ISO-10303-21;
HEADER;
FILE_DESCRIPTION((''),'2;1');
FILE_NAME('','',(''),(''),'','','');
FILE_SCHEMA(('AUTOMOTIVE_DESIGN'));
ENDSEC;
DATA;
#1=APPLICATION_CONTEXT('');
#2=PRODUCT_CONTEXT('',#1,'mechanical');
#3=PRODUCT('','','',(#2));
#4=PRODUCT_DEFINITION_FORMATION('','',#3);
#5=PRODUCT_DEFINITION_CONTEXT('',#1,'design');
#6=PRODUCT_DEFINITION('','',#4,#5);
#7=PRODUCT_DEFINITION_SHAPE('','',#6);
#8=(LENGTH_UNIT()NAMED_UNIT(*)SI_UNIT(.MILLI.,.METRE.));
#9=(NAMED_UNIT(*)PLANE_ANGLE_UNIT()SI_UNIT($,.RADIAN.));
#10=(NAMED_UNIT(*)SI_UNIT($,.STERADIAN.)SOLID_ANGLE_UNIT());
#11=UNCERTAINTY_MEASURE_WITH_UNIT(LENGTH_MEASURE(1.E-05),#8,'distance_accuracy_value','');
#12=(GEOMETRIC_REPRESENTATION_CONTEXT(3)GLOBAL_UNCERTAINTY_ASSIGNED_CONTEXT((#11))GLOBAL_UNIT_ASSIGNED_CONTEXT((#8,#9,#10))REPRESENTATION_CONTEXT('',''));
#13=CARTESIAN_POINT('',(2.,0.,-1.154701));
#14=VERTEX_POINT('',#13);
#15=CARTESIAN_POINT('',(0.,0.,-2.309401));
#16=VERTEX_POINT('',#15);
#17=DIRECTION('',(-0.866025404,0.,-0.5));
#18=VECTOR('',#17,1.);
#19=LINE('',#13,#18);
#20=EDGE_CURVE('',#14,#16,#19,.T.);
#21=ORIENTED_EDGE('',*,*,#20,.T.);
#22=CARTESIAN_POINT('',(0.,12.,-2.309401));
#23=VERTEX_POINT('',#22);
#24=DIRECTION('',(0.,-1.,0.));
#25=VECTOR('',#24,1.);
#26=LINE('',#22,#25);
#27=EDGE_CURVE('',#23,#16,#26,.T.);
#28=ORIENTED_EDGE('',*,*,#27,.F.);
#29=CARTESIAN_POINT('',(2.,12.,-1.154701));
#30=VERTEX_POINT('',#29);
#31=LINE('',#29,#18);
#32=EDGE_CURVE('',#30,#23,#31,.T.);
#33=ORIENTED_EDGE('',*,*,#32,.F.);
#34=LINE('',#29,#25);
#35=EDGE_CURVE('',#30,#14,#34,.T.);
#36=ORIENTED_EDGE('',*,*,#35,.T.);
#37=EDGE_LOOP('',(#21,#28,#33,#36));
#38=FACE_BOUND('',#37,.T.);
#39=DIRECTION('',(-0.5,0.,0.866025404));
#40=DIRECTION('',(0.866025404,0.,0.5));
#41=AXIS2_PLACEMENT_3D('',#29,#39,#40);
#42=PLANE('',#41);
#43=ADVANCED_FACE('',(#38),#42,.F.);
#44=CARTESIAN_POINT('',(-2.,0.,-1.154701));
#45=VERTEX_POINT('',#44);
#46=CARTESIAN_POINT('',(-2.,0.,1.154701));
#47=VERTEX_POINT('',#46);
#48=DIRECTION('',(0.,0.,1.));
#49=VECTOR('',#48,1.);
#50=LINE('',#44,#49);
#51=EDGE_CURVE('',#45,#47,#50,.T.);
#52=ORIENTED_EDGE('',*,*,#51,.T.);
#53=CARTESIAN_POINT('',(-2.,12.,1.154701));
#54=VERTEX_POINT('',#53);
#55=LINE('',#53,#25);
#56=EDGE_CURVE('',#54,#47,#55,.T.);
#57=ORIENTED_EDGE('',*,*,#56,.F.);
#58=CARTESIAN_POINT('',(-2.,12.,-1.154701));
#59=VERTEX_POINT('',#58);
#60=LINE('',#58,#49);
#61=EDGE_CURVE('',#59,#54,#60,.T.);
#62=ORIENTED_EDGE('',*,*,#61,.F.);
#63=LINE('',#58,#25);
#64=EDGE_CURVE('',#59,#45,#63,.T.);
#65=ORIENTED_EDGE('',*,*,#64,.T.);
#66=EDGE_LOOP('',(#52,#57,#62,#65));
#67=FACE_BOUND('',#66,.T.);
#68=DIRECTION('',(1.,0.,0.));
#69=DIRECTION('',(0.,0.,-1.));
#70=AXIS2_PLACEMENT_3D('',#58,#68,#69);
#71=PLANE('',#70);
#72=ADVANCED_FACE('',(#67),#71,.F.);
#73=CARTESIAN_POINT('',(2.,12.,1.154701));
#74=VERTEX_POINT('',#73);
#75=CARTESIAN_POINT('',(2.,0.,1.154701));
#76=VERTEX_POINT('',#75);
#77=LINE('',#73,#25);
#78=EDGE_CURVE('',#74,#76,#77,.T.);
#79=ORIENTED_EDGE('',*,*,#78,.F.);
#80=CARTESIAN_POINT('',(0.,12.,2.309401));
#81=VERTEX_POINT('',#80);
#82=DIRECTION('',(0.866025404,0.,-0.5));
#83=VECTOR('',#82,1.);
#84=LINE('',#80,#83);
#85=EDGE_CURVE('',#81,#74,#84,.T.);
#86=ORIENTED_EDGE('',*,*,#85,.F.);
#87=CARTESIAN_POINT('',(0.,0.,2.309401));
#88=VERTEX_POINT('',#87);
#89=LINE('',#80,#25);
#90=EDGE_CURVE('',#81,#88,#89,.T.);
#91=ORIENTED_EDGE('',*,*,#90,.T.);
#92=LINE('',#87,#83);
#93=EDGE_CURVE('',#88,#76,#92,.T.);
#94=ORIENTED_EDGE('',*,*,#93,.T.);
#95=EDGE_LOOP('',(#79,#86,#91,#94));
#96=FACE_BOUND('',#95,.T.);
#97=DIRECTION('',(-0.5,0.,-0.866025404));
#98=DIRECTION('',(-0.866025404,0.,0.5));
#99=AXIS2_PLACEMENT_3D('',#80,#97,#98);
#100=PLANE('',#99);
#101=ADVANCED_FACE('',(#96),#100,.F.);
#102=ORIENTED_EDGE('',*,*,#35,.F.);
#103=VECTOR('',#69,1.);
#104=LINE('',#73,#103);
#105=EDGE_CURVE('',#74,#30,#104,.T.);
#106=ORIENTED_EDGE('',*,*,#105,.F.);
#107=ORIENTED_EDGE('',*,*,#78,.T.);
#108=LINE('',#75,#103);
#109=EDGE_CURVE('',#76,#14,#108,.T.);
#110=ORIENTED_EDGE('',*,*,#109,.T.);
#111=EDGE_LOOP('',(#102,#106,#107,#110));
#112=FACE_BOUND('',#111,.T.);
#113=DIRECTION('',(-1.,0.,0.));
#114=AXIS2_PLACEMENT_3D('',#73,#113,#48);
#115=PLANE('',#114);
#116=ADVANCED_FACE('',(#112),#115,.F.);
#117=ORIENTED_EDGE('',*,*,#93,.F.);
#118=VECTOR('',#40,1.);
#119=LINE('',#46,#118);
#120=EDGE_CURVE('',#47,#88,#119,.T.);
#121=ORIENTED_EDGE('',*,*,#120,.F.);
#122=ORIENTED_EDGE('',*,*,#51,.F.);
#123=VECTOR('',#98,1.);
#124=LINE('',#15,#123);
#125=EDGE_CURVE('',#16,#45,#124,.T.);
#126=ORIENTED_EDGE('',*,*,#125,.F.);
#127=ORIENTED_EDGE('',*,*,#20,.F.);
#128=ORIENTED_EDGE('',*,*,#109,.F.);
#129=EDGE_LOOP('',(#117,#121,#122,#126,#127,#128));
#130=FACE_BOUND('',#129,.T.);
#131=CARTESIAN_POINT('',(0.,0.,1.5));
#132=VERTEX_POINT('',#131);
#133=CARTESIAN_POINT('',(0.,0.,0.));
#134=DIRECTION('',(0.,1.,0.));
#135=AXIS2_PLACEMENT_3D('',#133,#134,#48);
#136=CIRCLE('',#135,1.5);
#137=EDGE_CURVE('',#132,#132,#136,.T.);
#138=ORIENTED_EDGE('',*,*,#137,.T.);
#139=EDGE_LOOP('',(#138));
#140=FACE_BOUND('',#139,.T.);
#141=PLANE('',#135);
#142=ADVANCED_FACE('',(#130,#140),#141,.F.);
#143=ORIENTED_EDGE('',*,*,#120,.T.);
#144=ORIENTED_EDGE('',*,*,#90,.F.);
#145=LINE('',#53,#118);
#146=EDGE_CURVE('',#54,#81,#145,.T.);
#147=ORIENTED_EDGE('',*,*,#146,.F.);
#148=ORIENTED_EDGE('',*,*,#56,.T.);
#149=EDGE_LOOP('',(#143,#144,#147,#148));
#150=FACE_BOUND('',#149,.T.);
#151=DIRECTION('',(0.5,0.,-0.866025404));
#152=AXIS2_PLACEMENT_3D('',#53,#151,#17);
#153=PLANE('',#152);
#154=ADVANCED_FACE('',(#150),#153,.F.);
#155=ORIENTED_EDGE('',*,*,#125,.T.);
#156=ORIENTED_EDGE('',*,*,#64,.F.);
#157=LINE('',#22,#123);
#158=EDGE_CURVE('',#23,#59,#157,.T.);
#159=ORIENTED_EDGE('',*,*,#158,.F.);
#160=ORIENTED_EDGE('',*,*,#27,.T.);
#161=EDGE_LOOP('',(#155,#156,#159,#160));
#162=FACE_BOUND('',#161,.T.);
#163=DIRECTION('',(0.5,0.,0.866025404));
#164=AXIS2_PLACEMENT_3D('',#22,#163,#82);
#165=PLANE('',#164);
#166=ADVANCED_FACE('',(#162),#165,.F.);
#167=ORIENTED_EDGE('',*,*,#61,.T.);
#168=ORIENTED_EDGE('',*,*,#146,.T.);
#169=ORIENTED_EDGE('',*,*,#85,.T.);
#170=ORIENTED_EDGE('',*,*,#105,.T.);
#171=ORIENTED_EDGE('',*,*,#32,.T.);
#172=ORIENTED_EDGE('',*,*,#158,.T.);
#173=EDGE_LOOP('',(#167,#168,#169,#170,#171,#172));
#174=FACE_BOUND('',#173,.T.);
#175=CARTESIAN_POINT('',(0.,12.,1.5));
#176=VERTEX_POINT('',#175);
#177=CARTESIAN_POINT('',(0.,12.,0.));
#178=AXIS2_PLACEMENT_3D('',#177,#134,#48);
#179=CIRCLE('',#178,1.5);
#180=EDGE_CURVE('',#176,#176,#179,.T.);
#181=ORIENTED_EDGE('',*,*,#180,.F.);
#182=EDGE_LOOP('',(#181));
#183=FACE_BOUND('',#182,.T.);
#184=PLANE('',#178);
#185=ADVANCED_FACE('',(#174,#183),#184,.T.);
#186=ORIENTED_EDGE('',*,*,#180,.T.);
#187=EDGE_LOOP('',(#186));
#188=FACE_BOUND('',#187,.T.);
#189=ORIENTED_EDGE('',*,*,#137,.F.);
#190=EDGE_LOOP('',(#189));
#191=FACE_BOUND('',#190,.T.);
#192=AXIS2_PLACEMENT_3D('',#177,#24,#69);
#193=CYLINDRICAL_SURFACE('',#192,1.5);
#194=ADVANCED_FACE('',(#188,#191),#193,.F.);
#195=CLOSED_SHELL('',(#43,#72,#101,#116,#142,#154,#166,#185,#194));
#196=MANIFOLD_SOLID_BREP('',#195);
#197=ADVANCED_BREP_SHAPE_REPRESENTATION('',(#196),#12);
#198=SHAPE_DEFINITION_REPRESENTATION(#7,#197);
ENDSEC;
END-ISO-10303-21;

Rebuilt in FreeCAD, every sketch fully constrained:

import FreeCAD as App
import Part
import Sketcher
Q = App.Units.Quantity

doc = App.newDocument("Part")
body = doc.addObject("PartDesign::Body", "Body")

# Sketch on XZ plane
sketch1 = doc.addObject("Sketcher::SketchObject", "Sketch")
body.addObject(sketch1)
sketch1.AttachmentSupport = (doc.XZ_Plane, [""])
sketch1.MapMode = "FlatFace"
sketch1.addGeometry([
    Part.LineSegment(App.Vector(0, -2.309401, 0), App.Vector(-2, -1.154701, 0)),  # 0
    Part.LineSegment(App.Vector(-2, -1.154701, 0), App.Vector(-2, 1.154701, 0)),  # 1
    Part.LineSegment(App.Vector(-2, 1.154701, 0), App.Vector(0, 2.309401, 0)),  # 2
    Part.LineSegment(App.Vector(0, 2.309401, 0), App.Vector(2, 1.154701, 0)),  # 3
    Part.LineSegment(App.Vector(2, 1.154701, 0), App.Vector(2, -1.154701, 0)),  # 4
    Part.LineSegment(App.Vector(2, -1.154701, 0), App.Vector(0, -2.309401, 0)),  # 5
    Part.Circle(App.Vector(0, 0, 0), App.Vector(0, 0, 1), 1.5),  # 6
], False)
sketch1.addConstraint([
    Sketcher.Constraint("Coincident", 0, 2, 1, 1),
    Sketcher.Constraint("Coincident", 1, 2, 2, 1),
    Sketcher.Constraint("Coincident", 2, 2, 3, 1),
    Sketcher.Constraint("Coincident", 3, 2, 4, 1),
    Sketcher.Constraint("Coincident", 4, 2, 5, 1),
    Sketcher.Constraint("Coincident", 5, 2, 0, 1),
    Sketcher.Constraint("Vertical", 1),
    Sketcher.Constraint("Vertical", 4),
    Sketcher.Constraint("Coincident", 6, 3, -1, 1),
    Sketcher.Constraint("Symmetric", 0, 2, 3, 2, -1, 1),
    Sketcher.Constraint("Symmetric", 2, 2, 5, 2, -1, 1),
    Sketcher.Constraint("PointOnObject", 2, 2, -2),
    Sketcher.Constraint("Parallel", 2, 5),
    Sketcher.Constraint("Horizontal", 1, 2, 3, 2),
    Sketcher.Constraint("Diameter", 6, 3.0),
    Sketcher.Constraint("Angle", 0, Q("150 deg")),
    Sketcher.Constraint("DistanceX", 0, 2, -1, 1, 2.0),
    Sketcher.Constraint("DistanceY", 1, 1, 1, 2, 2.309401),
])
pad1 = doc.addObject("PartDesign::Pad", "Pad")
body.addObject(pad1)
pad1.Profile = sketch1
pad1.Length = 12
pad1.Reversed = True

doc.recompute()
